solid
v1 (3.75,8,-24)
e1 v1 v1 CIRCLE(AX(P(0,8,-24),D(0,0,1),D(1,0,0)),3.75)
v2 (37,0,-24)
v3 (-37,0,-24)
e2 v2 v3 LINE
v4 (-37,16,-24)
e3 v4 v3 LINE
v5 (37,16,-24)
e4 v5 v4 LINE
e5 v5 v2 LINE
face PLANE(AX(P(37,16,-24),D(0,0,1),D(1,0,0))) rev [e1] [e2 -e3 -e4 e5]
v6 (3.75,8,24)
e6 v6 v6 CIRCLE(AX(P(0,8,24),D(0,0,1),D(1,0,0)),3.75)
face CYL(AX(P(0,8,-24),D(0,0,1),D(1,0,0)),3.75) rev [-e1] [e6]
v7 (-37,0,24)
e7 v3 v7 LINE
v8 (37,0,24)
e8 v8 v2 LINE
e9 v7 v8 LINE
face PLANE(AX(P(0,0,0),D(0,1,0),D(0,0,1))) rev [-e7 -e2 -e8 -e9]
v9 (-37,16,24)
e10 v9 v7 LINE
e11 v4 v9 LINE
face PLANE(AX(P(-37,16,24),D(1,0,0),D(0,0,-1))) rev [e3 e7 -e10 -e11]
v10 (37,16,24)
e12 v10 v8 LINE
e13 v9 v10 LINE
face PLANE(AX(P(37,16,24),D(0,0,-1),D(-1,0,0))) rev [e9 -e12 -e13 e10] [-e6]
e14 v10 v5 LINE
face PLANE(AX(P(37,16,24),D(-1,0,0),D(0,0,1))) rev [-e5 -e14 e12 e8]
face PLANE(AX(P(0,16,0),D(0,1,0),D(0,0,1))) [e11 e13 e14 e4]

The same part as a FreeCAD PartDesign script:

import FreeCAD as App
import Part
import Sketcher
from FreeCAD import Vector
Q = App.Units.Quantity

doc = App.newDocument("Part")
body = doc.addObject("PartDesign::Body", "Body")

sketch1 = doc.addObject("Sketcher::SketchObject", "Sketch")
body.addObject(sketch1)
sketch1.AttachmentSupport = (doc.XZ_Plane, [""])
sketch1.MapMode = "FlatFace"
sketch1.addGeometry([
    Part.LineSegment(Vector(-37, -24, 0), Vector(-37, 24, 0)),
    Part.LineSegment(Vector(-37, 24, 0), Vector(37, 24, 0)),
    Part.LineSegment(Vector(37, 24, 0), Vector(37, -24, 0)),
    Part.LineSegment(Vector(37, -24, 0), Vector(-37, -24, 0)),
], False)
sketch1.addConstraint([
    Sketcher.Constraint("Coincident", 0, 2, 1, 1),
    Sketcher.Constraint("Coincident", 1, 2, 2, 1),
    Sketcher.Constraint("Coincident", 2, 2, 3, 1),
    Sketcher.Constraint("Coincident", 3, 2, 0, 1),
    Sketcher.Constraint("Vertical", 0),
    Sketcher.Constraint("Horizontal", 1),
    Sketcher.Constraint("Vertical", 2),
    Sketcher.Constraint("Horizontal", 3),
    Sketcher.Constraint("Symmetric", 0, 2, 2, 2, -1, 1),
    Sketcher.Constraint("DistanceX", 1, 1, 1, 2, Q("74 mm")),
    Sketcher.Constraint("DistanceY", 0, 1, 0, 2, Q("48 mm")),
])
pad1 = doc.addObject("PartDesign::Pad", "Pad")
body.addObject(pad1)
pad1.Profile = sketch1
pad1.Length = 16
pad1.Reversed = True

sketch2 = doc.addObject("Sketcher::SketchObject", "Sketch001")
body.addObject(sketch2)
sketch2.AttachmentSupport = (doc.XY_Plane, [""])
sketch2.MapMode = "FlatFace"
sketch2.AttachmentOffset = App.Placement(Vector(0, 0, 24), App.Rotation())
sketch2.addGeometry(Part.Circle(Vector(0, 8, 0), Vector(0, 0, 1), 3.75), False)
sketch2.addConstraint([
    Sketcher.Constraint("PointOnObject", 0, 3, -2),
    Sketcher.Constraint("Diameter", 0, Q("7.5 mm")),
    Sketcher.Constraint("DistanceY", -1, 1, 0, 3, Q("8 mm")),
])
pocket1 = doc.addObject("PartDesign::Pocket", "Pocket")
body.addObject(pocket1)
pocket1.Profile = sketch2
pocket1.Type = "ThroughAll"

doc.recompute()
